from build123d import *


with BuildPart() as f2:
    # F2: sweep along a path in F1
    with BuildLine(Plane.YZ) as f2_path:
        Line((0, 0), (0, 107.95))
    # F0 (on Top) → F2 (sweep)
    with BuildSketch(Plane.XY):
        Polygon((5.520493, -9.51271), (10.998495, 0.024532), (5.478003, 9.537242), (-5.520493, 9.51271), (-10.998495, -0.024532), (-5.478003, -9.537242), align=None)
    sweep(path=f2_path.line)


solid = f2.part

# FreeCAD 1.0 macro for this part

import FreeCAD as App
import Part
import Sketcher
from FreeCAD import Vector
Q = App.Units.Quantity


def add_polygon(sketch, points):
    """Adds a closed chain of lines whose ends are joined by coincident constraints."""
    first, n = sketch.GeometryCount, len(points)
    for a, b in zip(points, points[1:] + points[:1]):
        sketch.addGeometry(Part.LineSegment(App.Vector(*a, 0), App.Vector(*b, 0)), False)
    for i in range(n):
        sketch.addConstraint(Sketcher.Constraint("Coincident", first + i, 2, first + (i + 1) % n, 1))

doc = App.newDocument("Part")
params = doc.addObject("Spreadsheet::Sheet", "Params")
for row, (alias, value) in enumerate([
    ("sketch2_height", "4.25 in"),
], start=1):
    params.set(f"A{row}", alias)
    params.set(f"B{row}", "=" + value)
    params.setAlias(f"B{row}", alias)

body = doc.addObject("PartDesign::Body", "Body")

sketch1 = body.newObject("Sketcher::SketchObject", "Sketch")
sketch1.AttachmentSupport = (doc.getObject("XY_Plane"), [""])
sketch1.MapMode = "FlatFace"
add_polygon(sketch1, [(6, -10), (11, 0), (5, 10), (-6, 10), (-11, 0), (-5, -10)])
sketch1.addConstraint([
    Sketcher.Constraint("Symmetric", 0, 2, 3, 2, -1, 1),
    Sketcher.Constraint("Symmetric", 1, 2, 4, 2, -1, 1),
    Sketcher.Constraint("Symmetric", 2, 2, 5, 2, -1, 1),
    Sketcher.Constraint("Equal", 0, 1),
    Sketcher.Constraint("Equal", 1, 2),
    Sketcher.Constraint("Distance", 1, 10.998522),
    Sketcher.Constraint("DistanceY", -1, 1, 2, 2, 9.51271),
    Sketcher.Constraint("DistanceY", 0, 2, 1, 2, 9.51271),
    Sketcher.Constraint("DistanceX", 3, 2, 0, 2, 21.99699),
])

sketch2 = body.newObject("Sketcher::SketchObject", "Sketch001")
sketch2.AttachmentSupport = (doc.getObject("XZ_Plane"), [""])
sketch2.MapMode = "FlatFace"
sketch2.addGeometry(Part.LineSegment(Vector(0, 0, 0), Vector(0, 108, 0)), False)
sketch2.addConstraint([
    Sketcher.Constraint("Vertical", 0),
    Sketcher.Constraint("Coincident", 0, 1, -1, 1),
    Sketcher.Constraint("DistanceY", 0, 1, 0, 2, Q("4.25 in")),
])
sketch2.setExpression("Constraints[2]", "Params.sketch2_height")
doc.recompute()

additivepipe = body.newObject("PartDesign::AdditivePipe", "AdditivePipe")
additivepipe.Profile = sketch1
additivepipe.Spine = (sketch2, ["Edge1"])

doc.recompute()
